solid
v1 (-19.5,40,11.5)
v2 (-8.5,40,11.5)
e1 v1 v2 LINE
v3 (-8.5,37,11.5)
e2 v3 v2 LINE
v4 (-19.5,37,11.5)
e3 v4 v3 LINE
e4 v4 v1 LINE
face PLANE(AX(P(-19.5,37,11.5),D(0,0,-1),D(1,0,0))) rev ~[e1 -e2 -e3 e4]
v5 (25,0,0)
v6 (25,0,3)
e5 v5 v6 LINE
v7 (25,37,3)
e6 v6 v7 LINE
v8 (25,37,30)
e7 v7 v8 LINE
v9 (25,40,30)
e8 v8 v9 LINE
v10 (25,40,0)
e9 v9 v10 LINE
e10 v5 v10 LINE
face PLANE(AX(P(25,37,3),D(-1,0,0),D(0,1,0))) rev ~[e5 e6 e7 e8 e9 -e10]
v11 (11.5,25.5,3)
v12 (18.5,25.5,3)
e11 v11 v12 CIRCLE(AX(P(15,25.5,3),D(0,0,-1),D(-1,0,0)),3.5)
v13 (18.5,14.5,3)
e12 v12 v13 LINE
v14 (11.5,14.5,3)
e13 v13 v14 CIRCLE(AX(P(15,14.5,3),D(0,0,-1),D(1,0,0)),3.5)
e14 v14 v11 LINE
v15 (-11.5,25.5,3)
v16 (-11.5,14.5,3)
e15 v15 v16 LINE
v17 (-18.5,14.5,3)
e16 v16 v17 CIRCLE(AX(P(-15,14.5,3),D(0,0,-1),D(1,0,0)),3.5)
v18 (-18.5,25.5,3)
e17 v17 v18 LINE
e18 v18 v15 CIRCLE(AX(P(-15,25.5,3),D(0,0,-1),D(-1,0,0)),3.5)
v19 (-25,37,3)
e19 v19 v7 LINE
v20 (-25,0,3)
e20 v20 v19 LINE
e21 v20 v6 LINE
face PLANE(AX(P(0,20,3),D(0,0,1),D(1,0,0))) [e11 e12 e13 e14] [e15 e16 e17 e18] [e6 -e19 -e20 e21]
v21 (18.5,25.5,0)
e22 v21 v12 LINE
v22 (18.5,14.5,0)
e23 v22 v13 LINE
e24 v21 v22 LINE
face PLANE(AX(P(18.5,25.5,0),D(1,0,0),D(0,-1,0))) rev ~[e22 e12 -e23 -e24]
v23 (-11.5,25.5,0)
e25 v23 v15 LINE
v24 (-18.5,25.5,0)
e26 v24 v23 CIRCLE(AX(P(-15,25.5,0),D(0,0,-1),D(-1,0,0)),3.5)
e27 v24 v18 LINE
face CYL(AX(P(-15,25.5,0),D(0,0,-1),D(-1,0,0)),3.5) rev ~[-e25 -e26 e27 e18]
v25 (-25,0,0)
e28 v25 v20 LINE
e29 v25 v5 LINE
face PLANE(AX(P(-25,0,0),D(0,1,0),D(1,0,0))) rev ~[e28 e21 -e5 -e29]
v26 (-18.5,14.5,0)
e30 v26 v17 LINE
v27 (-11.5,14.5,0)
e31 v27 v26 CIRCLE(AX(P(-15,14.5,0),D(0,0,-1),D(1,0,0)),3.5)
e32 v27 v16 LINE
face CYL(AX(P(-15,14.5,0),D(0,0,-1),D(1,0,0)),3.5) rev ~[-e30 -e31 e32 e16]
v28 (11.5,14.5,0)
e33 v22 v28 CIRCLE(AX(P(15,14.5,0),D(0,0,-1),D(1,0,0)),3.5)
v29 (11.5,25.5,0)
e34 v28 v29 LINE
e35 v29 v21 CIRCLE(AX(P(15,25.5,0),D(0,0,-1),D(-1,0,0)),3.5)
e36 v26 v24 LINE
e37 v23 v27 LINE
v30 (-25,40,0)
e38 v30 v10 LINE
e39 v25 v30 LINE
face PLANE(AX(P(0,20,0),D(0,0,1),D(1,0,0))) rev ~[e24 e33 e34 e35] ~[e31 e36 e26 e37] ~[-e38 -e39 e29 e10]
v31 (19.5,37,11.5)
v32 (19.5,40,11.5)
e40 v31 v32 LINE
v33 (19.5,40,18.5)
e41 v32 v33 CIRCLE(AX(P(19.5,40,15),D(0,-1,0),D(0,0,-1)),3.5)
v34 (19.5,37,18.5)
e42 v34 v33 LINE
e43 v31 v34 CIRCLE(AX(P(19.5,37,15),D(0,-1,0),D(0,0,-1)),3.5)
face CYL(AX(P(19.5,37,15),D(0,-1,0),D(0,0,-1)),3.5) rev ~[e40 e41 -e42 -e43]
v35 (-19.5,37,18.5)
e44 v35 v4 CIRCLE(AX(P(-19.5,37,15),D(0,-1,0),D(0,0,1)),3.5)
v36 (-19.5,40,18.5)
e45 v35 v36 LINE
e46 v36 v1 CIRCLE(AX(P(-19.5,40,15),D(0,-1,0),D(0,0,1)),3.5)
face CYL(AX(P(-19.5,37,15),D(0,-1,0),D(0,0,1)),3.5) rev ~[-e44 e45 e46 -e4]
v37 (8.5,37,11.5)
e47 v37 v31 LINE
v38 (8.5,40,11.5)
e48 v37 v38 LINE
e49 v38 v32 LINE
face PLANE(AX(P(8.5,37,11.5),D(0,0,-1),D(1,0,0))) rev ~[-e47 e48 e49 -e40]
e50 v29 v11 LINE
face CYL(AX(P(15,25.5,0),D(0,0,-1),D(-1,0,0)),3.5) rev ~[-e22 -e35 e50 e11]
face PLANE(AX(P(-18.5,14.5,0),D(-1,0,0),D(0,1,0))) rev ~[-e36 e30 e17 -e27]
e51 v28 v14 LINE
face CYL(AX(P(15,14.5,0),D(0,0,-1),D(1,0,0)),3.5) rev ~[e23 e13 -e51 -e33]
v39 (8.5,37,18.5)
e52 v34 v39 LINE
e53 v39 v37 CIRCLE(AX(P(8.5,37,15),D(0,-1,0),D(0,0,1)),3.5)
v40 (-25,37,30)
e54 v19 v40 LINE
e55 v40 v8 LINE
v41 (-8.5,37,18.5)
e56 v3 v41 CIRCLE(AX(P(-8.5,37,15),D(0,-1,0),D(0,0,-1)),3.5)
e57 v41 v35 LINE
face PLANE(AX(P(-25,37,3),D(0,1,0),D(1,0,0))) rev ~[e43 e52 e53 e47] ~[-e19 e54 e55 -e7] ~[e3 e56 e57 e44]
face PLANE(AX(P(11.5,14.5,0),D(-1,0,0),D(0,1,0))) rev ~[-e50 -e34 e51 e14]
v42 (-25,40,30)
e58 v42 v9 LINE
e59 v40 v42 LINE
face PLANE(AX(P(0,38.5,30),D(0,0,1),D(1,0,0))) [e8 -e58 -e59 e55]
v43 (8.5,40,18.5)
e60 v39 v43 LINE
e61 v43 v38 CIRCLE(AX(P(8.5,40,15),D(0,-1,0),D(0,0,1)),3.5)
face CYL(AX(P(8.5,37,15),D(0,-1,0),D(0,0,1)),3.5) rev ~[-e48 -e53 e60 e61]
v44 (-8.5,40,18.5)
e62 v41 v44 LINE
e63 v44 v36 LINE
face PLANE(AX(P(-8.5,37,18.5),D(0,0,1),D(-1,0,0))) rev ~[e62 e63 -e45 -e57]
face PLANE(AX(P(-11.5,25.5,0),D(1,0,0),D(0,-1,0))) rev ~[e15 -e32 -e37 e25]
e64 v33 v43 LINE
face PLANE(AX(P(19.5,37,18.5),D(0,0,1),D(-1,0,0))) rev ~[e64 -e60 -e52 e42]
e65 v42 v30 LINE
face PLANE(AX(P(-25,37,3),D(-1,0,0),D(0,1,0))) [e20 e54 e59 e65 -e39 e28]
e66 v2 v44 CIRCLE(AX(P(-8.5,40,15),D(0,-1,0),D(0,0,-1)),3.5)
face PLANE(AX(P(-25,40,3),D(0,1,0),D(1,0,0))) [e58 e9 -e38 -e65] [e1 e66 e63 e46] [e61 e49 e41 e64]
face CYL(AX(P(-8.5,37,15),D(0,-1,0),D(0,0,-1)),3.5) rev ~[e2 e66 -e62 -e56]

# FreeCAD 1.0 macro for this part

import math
import FreeCAD as App
import Part
import Sketcher
Q = App.Units.Quantity

doc = App.newDocument("Part")
body = doc.addObject("PartDesign::Body", "Body")

# Sketch on XY plane
sketch1 = body.newObject("Sketcher::SketchObject", "Sketch")
sketch1.AttachmentSupport = (doc.getObject("XY_Plane"), [""])
sketch1.MapMode = "FlatFace"
sketch1.addGeometry(Part.LineSegment(App.Vector(-25, 40, 0), App.Vector(-25, 0, 0)), False)
sketch1.addGeometry(Part.LineSegment(App.Vector(-25, 0, 0), App.Vector(25, 0, 0)), False)
sketch1.addGeometry(Part.LineSegment(App.Vector(25, 0, 0), App.Vector(25, 40, 0)), False)
sketch1.addGeometry(Part.LineSegment(App.Vector(25, 40, 0), App.Vector(-25, 40, 0)), False)
sketch1.addGeometry(Part.ArcOfCircle(Part.Circle(App.Vector(-15, 25.5, 0), App.Vector(0, 0, 1), 3.5), math.radians(0), math.radians(180)), False)
sketch1.addGeometry(Part.LineSegment(App.Vector(-11.5, 25.5, 0), App.Vector(-11.5, 14.5, 0)), False)
sketch1.addGeometry(Part.ArcOfCircle(Part.Circle(App.Vector(-15, 14.5, 0), App.Vector(0, 0, 1), 3.5), math.radians(180), math.radians(360)), False)
sketch1.addGeometry(Part.LineSegment(App.Vector(-18.5, 14.5, 0), App.Vector(-18.5, 25.5, 0)), False)
sketch1.addGeometry(Part.ArcOfCircle(Part.Circle(App.Vector(15, 14.5, 0), App.Vector(0, 0, 1), 3.5), math.radians(180), math.radians(360)), False)
sketch1.addGeometry(Part.LineSegment(App.Vector(11.5, 14.5, 0), App.Vector(11.5, 25.5, 0)), False)
sketch1.addGeometry(Part.ArcOfCircle(Part.Circle(App.Vector(15, 25.5, 0), App.Vector(0, 0, 1), 3.5), math.radians(0), math.radians(180)), False)
sketch1.addGeometry(Part.LineSegment(App.Vector(18.5, 25.5, 0), App.Vector(18.5, 14.5, 0)), False)
sketch1.addConstraint(Sketcher.Constraint("Coincident", 0, 2, 1, 1))
sketch1.addConstraint(Sketcher.Constraint("Coincident", 1, 2, 2, 1))
sketch1.addConstraint(Sketcher.Constraint("Coincident", 2, 2, 3, 1))
sketch1.addConstraint(Sketcher.Constraint("Coincident", 3, 2, 0, 1))
sketch1.addConstraint(Sketcher.Constraint("Tangent", 4, 1, 5, 1))
sketch1.addConstraint(Sketcher.Constraint("Tangent", 5, 2, 6, 2))
sketch1.addConstraint(Sketcher.Constraint("Tangent", 6, 1, 7, 1))
sketch1.addConstraint(Sketcher.Constraint("Tangent", 7, 2, 4, 2))
sketch1.addConstraint(Sketcher.Constraint("Tangent", 8, 1, 9, 1))
sketch1.addConstraint(Sketcher.Constraint("Tangent", 9, 2, 10, 2))
sketch1.addConstraint(Sketcher.Constraint("Tangent", 10, 1, 11, 1))
sketch1.addConstraint(Sketcher.Constraint("Tangent", 11, 2, 8, 2))
sketch1.addConstraint(Sketcher.Constraint("Vertical", 0))
sketch1.addConstraint(Sketcher.Constraint("Horizontal", 1))
sketch1.addConstraint(Sketcher.Constraint("Vertical", 2))
sketch1.addConstraint(Sketcher.Constraint("Horizontal", 3))
sketch1.addConstraint(Sketcher.Constraint("Vertical", 5))
sketch1.addConstraint(Sketcher.Constraint("Vertical", 7))
sketch1.addConstraint(Sketcher.Constraint("Vertical", 9))
sketch1.addConstraint(Sketcher.Constraint("Vertical", 11))
sketch1.addConstraint(Sketcher.Constraint("Equal", 6, 8))
sketch1.addConstraint(Sketcher.Constraint("Symmetric", 0, 2, 1, 2, -1, 1))
sketch1.addConstraint(Sketcher.Constraint("Symmetric", 6, 3, 8, 3, -2))
sketch1.addConstraint(Sketcher.Constraint("Horizontal", 4, 3, 10, 3))
sketch1.addConstraint(Sketcher.Constraint("Radius", 4, Q("3.5 mm")))
sketch1.addConstraint(Sketcher.Constraint("DistanceX", 1, 1, 1, 2, Q("50 mm")))
sketch1.addConstraint(Sketcher.Constraint("DistanceY", 0, 2, 0, 1, Q("40 mm")))
sketch1.addConstraint(Sketcher.Constraint("DistanceY", 5, 2, 5, 1, Q("11 mm")))
sketch1.addConstraint(Sketcher.Constraint("DistanceX", 4, 3, -1, 1, Q("15 mm")))
sketch1.addConstraint(Sketcher.Constraint("DistanceY", -1, 1, 4, 3, Q("25.5 mm")))
pad1 = body.newObject("PartDesign::Pad", "Pad")
pad1.Profile = sketch1
pad1.Length = 3

# Sketch on XY plane
sketch2 = body.newObject("Sketcher::SketchObject", "Sketch001")
sketch2.AttachmentSupport = (doc.getObject("XY_Plane"), [""])
sketch2.MapMode = "FlatFace"
sketch2.AttachmentOffset = App.Placement(App.Vector(0, 0, 3), App.Rotation())
sketch2.addGeometry(Part.LineSegment(App.Vector(-25, 40, 0), App.Vector(-25, 37, 0)), False)
sketch2.addGeometry(Part.LineSegment(App.Vector(-25, 37, 0), App.Vector(25, 37, 0)), False)
sketch2.addGeometry(Part.LineSegment(App.Vector(25, 37, 0), App.Vector(25, 40, 0)), False)
sketch2.addGeometry(Part.LineSegment(App.Vector(25, 40, 0), App.Vector(-25, 40, 0)), False)
sketch2.addConstraint(Sketcher.Constraint("Coincident", 0, 2, 1, 1))
sketch2.addConstraint(Sketcher.Constraint("Coincident", 1, 2, 2, 1))
sketch2.addConstraint(Sketcher.Constraint("Coincident", 2, 2, 3, 1))
sketch2.addConstraint(Sketcher.Constraint("Coincident", 3, 2, 0, 1))
sketch2.addConstraint(Sketcher.Constraint("Vertical", 0))
sketch2.addConstraint(Sketcher.Constraint("Horizontal", 1))
sketch2.addConstraint(Sketcher.Constraint("Vertical", 2))
sketch2.addConstraint(Sketcher.Constraint("Horizontal", 3))
sketch2.addConstraint(Sketcher.Constraint("DistanceX", 1, 1, 1, 2, Q("50 mm")))
sketch2.addConstraint(Sketcher.Constraint("DistanceY", 0, 2, 0, 1, Q("3 mm")))
sketch2.addConstraint(Sketcher.Constraint("DistanceX", 0, 2, -1, 1, Q("25 mm")))
sketch2.addConstraint(Sketcher.Constraint("DistanceY", -1, 1, 0, 2, Q("37 mm")))
pad2 = body.newObject("PartDesign::Pad", "Pad001")
pad2.Profile = sketch2
pad2.Length = 27

# Sketch on XZ plane
sketch3 = body.newObject("Sketcher::SketchObject", "Sketch002")
sketch3.AttachmentSupport = (doc.getObject("XZ_Plane"), [""])
sketch3.MapMode = "FlatFace"
sketch3.AttachmentOffset = App.Placement(App.Vector(0, 0, -37), App.Rotation())
sketch3.addGeometry(Part.LineSegment(App.Vector(-19.5, 11.5, 0), App.Vector(-8.5, 11.5, 0)), False)
sketch3.addGeometry(Part.ArcOfCircle(Part.Circle(App.Vector(-8.5, 15, 0), App.Vector(0, 0, 1), 3.5), math.radians(-90), math.radians(90)), False)
sketch3.addGeometry(Part.LineSegment(App.Vector(-8.5, 18.5, 0), App.Vector(-19.5, 18.5, 0)), False)
sketch3.addGeometry(Part.ArcOfCircle(Part.Circle(App.Vector(-19.5, 15, 0), App.Vector(0, 0, 1), 3.5), math.radians(90), math.radians(270)), False)
sketch3.addGeometry(Part.ArcOfCircle(Part.Circle(App.Vector(8.5, 15, 0), App.Vector(0, 0, 1), 3.5), math.radians(90), math.radians(270)), False)
sketch3.addGeometry(Part.LineSegment(App.Vector(8.5, 11.5, 0), App.Vector(19.5, 11.5, 0)), False)
sketch3.addGeometry(Part.ArcOfCircle(Part.Circle(App.Vector(19.5, 15, 0), App.Vector(0, 0, 1), 3.5), math.radians(-90), math.radians(90)), False)
sketch3.addGeometry(Part.LineSegment(App.Vector(19.5, 18.5, 0), App.Vector(8.5, 18.5, 0)), False)
sketch3.addConstraint(Sketcher.Constraint("Tangent", 0, 2, 1, 1))
sketch3.addConstraint(Sketcher.Constraint("Tangent", 1, 2, 2, 1))
sketch3.addConstraint(Sketcher.Constraint("Tangent", 2, 2, 3, 1))
sketch3.addConstraint(Sketcher.Constraint("Tangent", 3, 2, 0, 1))
sketch3.addConstraint(Sketcher.Constraint("Tangent", 4, 2, 5, 1))
sketch3.addConstraint(Sketcher.Constraint("Tangent", 5, 2, 6, 1))
sketch3.addConstraint(Sketcher.Constraint("Tangent", 6, 2, 7, 1))
sketch3.addConstraint(Sketcher.Constraint("Tangent", 7, 2, 4, 1))
sketch3.addConstraint(Sketcher.Constraint("Horizontal", 0))
sketch3.addConstraint(Sketcher.Constraint("Horizontal", 2))
sketch3.addConstraint(Sketcher.Constraint("Horizontal", 5))
sketch3.addConstraint(Sketcher.Constraint("Horizontal", 7))
sketch3.addConstraint(Sketcher.Constraint("Equal", 3, 4))
sketch3.addConstraint(Sketcher.Constraint("Symmetric", 1, 3, 4, 3, -2))
sketch3.addConstraint(Sketcher.Constraint("Equal", 2, 5))
sketch3.addConstraint(Sketcher.Constraint("Radius", 1, Q("3.5 mm")))
sketch3.addConstraint(Sketcher.Constraint("DistanceX", 0, 1, 0, 2, Q("11 mm")))
sketch3.addConstraint(Sketcher.Constraint("DistanceY", -1, 1, 1, 3, Q("15 mm")))
sketch3.addConstraint(Sketcher.Constraint("DistanceX", 1, 3, 4, 3, Q("17 mm")))
pocket1 = body.newObject("PartDesign::Pocket", "Pocket")
pocket1.Profile = sketch3
pocket1.Length = 3

doc.recompute()
